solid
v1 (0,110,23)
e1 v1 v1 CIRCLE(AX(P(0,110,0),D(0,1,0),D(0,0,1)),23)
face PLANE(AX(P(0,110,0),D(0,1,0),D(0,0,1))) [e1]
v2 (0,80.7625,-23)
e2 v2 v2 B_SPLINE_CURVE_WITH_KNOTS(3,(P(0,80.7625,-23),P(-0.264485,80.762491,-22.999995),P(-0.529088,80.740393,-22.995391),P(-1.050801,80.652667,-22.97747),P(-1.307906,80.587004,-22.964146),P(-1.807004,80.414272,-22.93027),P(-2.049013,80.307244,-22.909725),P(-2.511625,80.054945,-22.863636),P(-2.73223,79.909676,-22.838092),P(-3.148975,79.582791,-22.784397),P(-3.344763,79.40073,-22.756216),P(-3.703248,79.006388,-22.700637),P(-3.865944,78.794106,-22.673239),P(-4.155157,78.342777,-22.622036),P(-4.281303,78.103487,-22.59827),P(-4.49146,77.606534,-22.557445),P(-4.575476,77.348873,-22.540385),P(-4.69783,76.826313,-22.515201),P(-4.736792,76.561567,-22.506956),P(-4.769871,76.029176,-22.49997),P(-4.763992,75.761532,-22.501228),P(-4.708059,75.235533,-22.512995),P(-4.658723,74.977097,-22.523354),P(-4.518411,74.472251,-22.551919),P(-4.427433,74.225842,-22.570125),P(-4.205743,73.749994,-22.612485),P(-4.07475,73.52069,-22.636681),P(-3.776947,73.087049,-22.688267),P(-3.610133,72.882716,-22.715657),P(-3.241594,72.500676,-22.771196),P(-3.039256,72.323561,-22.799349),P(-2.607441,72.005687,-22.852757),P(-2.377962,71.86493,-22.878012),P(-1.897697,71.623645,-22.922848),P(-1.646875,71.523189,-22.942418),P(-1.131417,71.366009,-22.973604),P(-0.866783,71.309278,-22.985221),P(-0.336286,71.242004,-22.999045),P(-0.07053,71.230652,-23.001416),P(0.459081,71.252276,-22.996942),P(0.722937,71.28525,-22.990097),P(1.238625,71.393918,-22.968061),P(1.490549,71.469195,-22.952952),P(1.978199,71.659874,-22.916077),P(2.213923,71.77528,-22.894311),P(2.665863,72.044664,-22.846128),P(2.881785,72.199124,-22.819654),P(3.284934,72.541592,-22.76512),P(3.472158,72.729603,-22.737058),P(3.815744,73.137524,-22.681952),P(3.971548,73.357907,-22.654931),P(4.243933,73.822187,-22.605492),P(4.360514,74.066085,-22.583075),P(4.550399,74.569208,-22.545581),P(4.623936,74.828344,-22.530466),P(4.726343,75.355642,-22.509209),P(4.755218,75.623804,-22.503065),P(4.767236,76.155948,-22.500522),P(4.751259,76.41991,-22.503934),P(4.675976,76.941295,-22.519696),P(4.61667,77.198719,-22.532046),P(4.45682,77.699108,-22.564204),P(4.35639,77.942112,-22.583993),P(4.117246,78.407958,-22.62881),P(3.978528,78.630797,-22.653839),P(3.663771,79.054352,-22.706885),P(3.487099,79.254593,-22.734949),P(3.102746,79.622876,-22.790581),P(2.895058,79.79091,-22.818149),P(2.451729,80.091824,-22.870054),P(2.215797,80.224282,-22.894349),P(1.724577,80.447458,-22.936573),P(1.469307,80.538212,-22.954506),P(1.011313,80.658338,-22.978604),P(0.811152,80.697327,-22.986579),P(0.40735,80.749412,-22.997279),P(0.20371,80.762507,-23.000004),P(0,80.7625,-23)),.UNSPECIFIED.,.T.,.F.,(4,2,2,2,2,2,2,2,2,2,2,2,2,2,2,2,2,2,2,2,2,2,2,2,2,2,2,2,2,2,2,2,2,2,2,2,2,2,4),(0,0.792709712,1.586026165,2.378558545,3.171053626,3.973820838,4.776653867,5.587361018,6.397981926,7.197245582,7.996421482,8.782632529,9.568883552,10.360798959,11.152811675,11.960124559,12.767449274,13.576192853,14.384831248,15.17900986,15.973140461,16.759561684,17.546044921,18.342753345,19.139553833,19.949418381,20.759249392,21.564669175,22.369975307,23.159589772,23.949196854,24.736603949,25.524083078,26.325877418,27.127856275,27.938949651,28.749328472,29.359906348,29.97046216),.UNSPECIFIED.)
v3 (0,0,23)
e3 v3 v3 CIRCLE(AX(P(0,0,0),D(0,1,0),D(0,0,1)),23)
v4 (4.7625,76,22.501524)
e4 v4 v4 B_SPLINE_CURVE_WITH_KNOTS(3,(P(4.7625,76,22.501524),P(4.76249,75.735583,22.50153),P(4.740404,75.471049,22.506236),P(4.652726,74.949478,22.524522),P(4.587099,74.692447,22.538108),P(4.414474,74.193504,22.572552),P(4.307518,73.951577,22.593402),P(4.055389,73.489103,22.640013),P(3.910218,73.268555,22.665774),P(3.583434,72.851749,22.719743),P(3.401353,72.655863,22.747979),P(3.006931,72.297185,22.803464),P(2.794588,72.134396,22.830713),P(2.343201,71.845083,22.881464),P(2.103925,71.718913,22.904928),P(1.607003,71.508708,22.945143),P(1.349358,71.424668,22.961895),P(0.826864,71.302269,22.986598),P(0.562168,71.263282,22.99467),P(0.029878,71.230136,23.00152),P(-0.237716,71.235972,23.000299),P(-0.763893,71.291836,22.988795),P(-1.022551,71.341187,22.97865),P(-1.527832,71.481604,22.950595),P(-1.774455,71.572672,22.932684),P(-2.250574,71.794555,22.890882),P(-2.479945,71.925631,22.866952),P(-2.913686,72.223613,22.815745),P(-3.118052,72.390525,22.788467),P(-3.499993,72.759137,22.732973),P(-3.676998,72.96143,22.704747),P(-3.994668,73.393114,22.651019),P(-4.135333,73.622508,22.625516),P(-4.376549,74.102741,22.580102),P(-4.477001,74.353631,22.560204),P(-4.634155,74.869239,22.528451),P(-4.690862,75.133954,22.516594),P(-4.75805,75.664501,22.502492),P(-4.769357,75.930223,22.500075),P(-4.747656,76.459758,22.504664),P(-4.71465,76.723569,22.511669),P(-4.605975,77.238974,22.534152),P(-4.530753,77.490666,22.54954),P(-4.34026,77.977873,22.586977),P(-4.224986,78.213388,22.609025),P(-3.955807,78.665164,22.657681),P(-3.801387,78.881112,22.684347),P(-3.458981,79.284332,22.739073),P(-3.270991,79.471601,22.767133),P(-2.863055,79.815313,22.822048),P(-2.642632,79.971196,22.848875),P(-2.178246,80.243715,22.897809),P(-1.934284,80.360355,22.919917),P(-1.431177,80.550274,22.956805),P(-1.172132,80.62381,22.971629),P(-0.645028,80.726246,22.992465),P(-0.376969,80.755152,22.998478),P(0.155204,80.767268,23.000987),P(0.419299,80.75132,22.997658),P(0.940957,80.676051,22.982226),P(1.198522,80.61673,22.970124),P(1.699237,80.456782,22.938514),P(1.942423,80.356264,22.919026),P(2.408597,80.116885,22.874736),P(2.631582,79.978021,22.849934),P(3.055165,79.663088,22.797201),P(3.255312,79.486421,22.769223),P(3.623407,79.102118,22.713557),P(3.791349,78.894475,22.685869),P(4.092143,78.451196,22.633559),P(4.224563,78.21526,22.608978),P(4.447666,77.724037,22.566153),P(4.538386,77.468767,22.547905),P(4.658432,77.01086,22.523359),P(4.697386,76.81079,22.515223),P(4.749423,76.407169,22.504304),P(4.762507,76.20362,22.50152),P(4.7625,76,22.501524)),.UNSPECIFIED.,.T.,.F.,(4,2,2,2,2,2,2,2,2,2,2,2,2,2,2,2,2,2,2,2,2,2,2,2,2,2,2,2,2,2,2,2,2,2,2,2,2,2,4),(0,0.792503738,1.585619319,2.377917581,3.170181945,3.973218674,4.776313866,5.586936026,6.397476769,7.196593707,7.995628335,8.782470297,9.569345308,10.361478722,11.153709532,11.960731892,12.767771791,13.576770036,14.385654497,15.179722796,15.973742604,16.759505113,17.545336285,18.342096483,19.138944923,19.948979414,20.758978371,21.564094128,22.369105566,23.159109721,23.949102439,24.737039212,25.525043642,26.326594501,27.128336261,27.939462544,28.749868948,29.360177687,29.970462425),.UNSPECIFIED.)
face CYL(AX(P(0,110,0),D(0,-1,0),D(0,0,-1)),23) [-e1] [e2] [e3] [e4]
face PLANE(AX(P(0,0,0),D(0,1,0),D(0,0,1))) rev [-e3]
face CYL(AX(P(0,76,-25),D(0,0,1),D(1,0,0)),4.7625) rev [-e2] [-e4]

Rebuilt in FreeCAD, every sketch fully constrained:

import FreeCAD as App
import Part
import Sketcher
from FreeCAD import Vector

doc = App.newDocument("Part")
body = doc.addObject("PartDesign::Body", "Body")

sketch1 = doc.addObject("Sketcher::SketchObject", "Sketch")
body.addObject(sketch1)
sketch1.AttachmentSupport = (doc.XZ_Plane, [""])
sketch1.MapMode = "FlatFace"
sketch1.addGeometry(Part.Circle(Vector(0, 0, 0), Vector(0, 0, 1), 23), False)
sketch1.addConstraint(Sketcher.Constraint("Coincident", 0, 3, -1, 1))
sketch1.addConstraint(Sketcher.Constraint("Diameter", 0, 46.0))
pad1 = doc.addObject("PartDesign::Pad", "Pad")
body.addObject(pad1)
pad1.Profile = sketch1
pad1.Length = 110
pad1.Reversed = True

sketch2 = doc.addObject("Sketcher::SketchObject", "Sketch001")
body.addObject(sketch2)
sketch2.AttachmentSupport = (doc.XY_Plane, [""])
sketch2.MapMode = "FlatFace"
sketch2.addGeometry(Part.Circle(Vector(0, 76, 0), Vector(0, 0, 1), 4.8), False)
sketch2.addConstraint(Sketcher.Constraint("PointOnObject", 0, 3, -2))
sketch2.addConstraint(Sketcher.Constraint("Diameter", 0, 9.525))
sketch2.addConstraint(Sketcher.Constraint("DistanceY", -1, 1, 0, 3, 76.0))
pocket1 = doc.addObject("PartDesign::Pocket", "Pocket")
body.addObject(pocket1)
pocket1.Profile = sketch2
pocket1.Length = 50
pocket1.Midplane = True

doc.recompute()
